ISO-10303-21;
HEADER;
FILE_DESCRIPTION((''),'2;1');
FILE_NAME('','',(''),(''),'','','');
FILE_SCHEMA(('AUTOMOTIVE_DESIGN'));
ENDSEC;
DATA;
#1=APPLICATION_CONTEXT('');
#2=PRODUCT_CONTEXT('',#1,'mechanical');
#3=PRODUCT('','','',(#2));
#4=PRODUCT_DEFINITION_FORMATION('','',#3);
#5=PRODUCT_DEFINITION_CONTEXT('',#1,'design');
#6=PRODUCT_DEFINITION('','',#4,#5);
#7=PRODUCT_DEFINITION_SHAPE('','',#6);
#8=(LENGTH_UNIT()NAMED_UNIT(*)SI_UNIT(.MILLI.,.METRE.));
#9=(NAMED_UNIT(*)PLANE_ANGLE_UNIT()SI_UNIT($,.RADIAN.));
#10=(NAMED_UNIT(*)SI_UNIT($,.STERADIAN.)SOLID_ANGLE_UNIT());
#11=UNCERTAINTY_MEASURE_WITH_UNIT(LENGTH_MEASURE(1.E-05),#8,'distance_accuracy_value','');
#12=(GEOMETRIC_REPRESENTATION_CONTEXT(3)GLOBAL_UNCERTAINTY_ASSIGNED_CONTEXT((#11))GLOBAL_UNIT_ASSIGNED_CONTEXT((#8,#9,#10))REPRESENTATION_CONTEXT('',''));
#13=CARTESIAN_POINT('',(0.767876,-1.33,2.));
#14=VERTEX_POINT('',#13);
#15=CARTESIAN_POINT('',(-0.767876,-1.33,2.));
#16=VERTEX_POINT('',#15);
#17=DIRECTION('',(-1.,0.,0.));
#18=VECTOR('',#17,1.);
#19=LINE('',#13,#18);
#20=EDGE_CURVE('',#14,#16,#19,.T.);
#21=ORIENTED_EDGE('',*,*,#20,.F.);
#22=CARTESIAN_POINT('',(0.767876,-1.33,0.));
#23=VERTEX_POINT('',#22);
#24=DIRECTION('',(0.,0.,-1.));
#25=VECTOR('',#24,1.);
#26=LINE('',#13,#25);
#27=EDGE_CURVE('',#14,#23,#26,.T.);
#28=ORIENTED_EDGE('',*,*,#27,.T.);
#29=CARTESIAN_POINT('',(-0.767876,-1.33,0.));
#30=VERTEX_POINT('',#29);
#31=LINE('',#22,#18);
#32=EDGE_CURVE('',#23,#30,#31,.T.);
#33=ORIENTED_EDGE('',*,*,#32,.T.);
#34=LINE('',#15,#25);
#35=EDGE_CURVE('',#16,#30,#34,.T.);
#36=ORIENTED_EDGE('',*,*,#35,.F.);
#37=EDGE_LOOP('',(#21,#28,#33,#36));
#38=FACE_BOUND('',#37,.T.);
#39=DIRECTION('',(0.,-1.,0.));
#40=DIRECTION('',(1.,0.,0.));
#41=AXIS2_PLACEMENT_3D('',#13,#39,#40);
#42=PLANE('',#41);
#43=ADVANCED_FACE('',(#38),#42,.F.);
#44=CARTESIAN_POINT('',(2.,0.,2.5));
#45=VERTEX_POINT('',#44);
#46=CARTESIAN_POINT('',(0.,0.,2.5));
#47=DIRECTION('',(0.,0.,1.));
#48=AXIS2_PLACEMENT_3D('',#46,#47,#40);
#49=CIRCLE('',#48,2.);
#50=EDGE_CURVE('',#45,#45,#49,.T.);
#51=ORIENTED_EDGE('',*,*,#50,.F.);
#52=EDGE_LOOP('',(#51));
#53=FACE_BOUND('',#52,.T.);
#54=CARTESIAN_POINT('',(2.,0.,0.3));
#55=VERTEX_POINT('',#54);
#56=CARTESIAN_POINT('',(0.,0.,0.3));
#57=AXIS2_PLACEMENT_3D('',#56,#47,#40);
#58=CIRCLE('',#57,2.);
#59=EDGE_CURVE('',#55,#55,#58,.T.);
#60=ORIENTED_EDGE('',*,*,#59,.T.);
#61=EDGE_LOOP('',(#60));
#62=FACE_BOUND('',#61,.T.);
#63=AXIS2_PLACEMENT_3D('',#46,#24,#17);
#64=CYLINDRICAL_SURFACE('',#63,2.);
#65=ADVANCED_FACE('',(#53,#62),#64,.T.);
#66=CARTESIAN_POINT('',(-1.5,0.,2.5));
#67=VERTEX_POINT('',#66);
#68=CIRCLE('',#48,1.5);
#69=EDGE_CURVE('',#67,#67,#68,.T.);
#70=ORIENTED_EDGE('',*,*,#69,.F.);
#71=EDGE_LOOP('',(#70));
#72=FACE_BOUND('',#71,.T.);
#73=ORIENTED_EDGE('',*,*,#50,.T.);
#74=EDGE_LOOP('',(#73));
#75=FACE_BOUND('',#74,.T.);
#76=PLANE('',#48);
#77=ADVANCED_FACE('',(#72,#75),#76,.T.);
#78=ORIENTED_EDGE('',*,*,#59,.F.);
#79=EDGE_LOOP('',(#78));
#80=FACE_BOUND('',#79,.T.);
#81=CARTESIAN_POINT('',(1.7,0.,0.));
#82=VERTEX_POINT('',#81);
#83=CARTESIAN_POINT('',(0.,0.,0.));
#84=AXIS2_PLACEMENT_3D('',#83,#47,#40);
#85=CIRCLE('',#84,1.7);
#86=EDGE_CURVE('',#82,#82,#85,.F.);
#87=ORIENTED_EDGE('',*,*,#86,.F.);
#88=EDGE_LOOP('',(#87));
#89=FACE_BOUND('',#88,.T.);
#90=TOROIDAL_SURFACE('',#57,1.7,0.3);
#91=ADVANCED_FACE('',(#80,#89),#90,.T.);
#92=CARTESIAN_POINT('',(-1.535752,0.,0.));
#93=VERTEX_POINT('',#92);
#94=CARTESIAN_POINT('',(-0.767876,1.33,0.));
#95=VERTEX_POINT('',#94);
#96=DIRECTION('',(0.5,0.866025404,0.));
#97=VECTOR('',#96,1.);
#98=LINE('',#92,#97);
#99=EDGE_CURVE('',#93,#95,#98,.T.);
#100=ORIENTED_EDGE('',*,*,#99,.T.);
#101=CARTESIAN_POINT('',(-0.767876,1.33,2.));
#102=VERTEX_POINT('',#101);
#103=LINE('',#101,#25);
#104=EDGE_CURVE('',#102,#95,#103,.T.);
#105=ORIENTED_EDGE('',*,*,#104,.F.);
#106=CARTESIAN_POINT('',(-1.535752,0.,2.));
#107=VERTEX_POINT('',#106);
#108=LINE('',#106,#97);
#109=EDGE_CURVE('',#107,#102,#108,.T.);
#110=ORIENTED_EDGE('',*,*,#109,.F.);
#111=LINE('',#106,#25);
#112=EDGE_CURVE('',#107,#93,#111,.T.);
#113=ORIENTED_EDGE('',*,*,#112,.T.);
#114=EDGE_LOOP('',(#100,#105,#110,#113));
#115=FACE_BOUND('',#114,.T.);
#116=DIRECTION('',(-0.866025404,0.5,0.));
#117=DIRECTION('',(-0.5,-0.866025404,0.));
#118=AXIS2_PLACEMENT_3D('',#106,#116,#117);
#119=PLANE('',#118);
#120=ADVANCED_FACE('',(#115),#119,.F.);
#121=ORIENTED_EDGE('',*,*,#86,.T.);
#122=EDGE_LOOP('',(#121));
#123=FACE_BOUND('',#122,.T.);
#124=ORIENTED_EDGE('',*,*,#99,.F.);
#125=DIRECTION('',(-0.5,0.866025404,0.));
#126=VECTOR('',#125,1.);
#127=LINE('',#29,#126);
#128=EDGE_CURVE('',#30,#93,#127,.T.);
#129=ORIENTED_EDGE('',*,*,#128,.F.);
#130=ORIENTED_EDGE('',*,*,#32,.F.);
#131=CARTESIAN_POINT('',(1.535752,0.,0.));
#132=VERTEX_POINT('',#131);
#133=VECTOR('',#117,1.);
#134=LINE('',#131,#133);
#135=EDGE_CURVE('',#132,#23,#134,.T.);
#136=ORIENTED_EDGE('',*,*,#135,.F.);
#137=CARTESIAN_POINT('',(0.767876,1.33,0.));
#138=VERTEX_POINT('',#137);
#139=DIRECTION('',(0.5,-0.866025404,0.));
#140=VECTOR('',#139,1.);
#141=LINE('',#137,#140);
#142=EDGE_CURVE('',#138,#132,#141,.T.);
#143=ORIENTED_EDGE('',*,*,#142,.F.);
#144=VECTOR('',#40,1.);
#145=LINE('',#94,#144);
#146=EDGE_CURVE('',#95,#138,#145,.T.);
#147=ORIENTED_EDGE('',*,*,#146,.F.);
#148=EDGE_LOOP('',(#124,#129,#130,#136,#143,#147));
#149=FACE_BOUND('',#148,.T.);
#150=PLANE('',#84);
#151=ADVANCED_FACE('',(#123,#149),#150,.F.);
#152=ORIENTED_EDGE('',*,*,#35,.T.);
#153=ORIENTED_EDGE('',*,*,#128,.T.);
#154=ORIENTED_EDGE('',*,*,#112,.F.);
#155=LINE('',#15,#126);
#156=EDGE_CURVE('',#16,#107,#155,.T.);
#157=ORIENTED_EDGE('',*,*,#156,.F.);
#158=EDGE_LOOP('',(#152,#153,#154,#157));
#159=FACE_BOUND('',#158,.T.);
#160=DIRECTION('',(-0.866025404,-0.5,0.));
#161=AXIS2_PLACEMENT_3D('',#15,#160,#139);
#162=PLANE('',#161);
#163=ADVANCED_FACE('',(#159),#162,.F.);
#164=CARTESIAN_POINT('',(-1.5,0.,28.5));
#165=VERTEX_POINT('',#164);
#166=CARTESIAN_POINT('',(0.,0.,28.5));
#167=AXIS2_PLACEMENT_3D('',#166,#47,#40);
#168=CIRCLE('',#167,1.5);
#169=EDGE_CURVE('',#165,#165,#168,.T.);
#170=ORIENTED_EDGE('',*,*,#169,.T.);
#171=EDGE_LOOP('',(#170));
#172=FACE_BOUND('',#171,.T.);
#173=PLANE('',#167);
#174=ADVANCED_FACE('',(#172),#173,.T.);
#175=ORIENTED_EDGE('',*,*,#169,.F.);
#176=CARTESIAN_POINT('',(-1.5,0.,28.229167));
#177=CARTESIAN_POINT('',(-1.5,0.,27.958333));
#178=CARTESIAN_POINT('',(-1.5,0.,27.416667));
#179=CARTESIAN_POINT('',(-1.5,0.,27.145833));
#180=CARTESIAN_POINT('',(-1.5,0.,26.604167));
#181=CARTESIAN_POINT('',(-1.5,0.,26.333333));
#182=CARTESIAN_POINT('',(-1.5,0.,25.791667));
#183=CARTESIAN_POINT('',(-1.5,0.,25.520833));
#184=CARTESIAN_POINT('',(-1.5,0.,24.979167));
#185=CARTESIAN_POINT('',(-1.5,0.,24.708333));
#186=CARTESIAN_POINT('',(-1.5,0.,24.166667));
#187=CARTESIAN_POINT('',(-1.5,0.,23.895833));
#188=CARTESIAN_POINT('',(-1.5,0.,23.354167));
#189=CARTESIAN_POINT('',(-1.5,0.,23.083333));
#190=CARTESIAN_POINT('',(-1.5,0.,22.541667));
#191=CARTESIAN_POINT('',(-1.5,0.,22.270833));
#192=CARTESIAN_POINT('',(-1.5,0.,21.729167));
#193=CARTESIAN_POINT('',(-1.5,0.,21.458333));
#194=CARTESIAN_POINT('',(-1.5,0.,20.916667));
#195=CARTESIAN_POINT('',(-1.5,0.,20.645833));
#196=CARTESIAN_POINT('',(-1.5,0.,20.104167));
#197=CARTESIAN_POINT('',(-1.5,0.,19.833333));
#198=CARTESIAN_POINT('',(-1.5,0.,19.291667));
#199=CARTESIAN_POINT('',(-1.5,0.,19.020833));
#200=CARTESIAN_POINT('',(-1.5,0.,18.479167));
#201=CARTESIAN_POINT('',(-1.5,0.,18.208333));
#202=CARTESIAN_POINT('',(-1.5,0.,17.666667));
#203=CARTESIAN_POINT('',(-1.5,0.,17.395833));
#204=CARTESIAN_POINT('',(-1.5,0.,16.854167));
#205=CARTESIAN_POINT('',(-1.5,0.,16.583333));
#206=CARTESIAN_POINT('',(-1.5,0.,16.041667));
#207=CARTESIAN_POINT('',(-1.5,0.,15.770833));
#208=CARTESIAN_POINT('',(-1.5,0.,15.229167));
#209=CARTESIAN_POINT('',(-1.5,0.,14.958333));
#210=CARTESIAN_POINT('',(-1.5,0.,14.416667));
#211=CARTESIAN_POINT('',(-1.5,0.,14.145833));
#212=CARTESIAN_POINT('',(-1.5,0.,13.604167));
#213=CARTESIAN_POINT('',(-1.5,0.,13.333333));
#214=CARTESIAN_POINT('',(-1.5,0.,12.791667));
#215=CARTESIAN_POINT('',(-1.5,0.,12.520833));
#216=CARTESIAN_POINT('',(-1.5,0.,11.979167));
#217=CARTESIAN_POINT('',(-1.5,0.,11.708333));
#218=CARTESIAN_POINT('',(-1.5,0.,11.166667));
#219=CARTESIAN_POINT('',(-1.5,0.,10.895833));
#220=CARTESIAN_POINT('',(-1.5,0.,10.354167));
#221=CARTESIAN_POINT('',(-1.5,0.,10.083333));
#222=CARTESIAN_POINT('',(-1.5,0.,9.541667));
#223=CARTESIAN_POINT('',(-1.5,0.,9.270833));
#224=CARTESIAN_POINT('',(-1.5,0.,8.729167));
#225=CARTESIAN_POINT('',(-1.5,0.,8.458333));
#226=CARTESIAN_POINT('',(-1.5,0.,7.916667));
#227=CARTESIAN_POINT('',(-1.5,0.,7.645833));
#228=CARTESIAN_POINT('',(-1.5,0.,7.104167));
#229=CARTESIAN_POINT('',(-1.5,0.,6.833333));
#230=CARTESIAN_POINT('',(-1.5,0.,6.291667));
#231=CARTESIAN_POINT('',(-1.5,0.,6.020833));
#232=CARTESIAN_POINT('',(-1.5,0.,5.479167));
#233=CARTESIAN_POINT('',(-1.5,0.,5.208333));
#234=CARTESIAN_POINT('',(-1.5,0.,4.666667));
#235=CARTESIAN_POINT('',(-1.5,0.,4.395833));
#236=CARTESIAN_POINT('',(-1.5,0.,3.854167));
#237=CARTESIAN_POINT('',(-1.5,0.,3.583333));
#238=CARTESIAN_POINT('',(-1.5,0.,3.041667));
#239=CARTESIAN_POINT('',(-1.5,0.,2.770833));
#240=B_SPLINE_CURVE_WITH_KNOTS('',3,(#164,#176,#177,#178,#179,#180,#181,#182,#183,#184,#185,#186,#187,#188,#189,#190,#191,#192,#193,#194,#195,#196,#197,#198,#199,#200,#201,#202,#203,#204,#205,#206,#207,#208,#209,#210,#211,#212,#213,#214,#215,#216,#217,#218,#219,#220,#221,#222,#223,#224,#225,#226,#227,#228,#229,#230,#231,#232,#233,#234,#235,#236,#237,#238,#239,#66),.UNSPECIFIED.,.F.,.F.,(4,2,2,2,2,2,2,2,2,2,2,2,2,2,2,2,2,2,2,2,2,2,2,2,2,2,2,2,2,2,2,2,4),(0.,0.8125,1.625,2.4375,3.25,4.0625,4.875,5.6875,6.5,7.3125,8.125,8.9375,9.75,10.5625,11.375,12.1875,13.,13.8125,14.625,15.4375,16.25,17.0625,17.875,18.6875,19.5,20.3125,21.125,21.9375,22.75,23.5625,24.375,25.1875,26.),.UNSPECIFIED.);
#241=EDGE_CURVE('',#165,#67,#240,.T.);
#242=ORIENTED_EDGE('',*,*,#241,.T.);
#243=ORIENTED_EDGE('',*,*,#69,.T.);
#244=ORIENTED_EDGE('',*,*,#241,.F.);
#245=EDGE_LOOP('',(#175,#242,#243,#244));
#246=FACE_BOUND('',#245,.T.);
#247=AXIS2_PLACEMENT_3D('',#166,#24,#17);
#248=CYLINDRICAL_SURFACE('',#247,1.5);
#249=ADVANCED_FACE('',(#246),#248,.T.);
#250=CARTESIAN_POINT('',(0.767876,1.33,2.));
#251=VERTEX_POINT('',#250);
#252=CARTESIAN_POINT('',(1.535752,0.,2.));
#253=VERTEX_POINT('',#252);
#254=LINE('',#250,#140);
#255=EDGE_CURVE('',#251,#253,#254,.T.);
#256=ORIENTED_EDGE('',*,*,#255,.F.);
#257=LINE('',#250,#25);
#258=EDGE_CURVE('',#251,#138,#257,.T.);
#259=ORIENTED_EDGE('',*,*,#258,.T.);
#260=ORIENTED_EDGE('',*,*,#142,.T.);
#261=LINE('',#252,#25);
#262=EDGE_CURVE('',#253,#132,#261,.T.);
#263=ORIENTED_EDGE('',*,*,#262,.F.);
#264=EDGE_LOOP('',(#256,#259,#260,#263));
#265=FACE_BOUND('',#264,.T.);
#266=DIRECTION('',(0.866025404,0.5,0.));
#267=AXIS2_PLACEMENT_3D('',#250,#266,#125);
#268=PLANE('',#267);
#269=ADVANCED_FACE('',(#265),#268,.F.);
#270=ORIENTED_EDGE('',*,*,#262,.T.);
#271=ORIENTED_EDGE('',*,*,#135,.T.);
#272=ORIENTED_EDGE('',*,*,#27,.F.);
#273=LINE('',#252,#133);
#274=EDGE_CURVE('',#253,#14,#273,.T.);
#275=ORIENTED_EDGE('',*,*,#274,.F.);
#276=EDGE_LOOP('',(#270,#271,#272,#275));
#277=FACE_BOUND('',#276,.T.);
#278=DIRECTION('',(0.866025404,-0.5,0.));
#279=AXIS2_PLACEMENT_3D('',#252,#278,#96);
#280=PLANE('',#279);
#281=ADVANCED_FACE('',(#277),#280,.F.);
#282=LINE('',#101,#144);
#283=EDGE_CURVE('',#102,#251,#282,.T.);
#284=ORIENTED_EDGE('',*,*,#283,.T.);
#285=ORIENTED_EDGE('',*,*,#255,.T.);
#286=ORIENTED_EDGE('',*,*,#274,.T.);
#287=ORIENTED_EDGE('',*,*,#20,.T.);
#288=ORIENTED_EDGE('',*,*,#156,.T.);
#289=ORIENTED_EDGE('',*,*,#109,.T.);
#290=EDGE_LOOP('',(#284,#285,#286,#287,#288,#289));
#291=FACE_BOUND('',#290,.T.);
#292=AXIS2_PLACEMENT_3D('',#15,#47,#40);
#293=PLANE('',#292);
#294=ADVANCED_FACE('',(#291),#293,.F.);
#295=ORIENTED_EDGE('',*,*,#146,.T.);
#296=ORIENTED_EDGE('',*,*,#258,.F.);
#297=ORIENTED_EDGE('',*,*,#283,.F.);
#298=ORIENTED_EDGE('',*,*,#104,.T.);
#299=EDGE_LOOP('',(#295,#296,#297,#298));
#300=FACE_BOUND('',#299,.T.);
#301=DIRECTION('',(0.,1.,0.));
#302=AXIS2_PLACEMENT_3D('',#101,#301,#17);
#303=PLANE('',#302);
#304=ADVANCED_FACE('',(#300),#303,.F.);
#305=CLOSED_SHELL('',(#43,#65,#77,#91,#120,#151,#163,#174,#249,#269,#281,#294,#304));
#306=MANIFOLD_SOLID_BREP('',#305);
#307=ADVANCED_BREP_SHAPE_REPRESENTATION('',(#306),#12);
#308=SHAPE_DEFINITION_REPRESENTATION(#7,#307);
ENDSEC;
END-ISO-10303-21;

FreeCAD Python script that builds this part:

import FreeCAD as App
import Part
import Sketcher
Q = App.Units.Quantity


def edges_at(feature, points):
    """Names of the edges that pass closest to the given points."""
    edges = feature.Shape.Edges
    near = lambda p: min(range(len(edges)), key=lambda i: edges[i].distToShape(Part.Vertex(*p))[0])
    return sorted({f"Edge{near(p) + 1}" for p in points})


def add_polygon(sketch, points):
    """Adds a closed chain of lines whose ends are joined by coincident constraints."""
    first, n = sketch.GeometryCount, len(points)
    for a, b in zip(points, points[1:] + points[:1]):
        sketch.addGeometry(Part.LineSegment(App.Vector(*a, 0), App.Vector(*b, 0)), False)
    for i in range(n):
        sketch.addConstraint(Sketcher.Constraint("Coincident", first + i, 2, first + (i + 1) % n, 1))

doc = App.newDocument("Part")
body = doc.addObject("PartDesign::Body", "Body")

# Sketch on XY plane
sketch1 = body.newObject("Sketcher::SketchObject", "Sketch")
sketch1.AttachmentSupport = (doc.getObject("XY_Plane"), [""])
sketch1.MapMode = "FlatFace"
sketch1.addGeometry(Part.Circle(App.Vector(0, 0, 0), App.Vector(0, 0, 1), 2), False)
sketch1.addConstraint(Sketcher.Constraint("Coincident", 0, 3, -1, 1))
sketch1.addConstraint(Sketcher.Constraint("Diameter", 0, Q("4 mm")))
pad1 = body.newObject("PartDesign::Pad", "Pad")
pad1.Profile = sketch1
pad1.Length = 2.5

# Sketch on XY plane
sketch2 = body.newObject("Sketcher::SketchObject", "Sketch001")
sketch2.AttachmentSupport = (doc.getObject("XY_Plane"), [""])
sketch2.MapMode = "FlatFace"
sketch2.AttachmentOffset = App.Placement(App.Vector(0, 0, 2.5), App.Rotation())
sketch2.addGeometry(Part.Circle(App.Vector(0, 0, 0), App.Vector(0, 0, 1), 1.5), False)
sketch2.addConstraint(Sketcher.Constraint("Coincident", 0, 3, -1, 1))
sketch2.addConstraint(Sketcher.Constraint("Diameter", 0, Q("3 mm")))
pad2 = body.newObject("PartDesign::Pad", "Pad001")
pad2.Profile = sketch2
pad2.Length = 26
doc.recompute()

fillet = body.newObject("PartDesign::Fillet", "Fillet")
fillet.Base = (pad2, edges_at(pad2, [(-2, 0, 0)]))
fillet.Radius = 0.3

# Sketch on XY plane
sketch3 = body.newObject("Sketcher::SketchObject", "Sketch002")
sketch3.AttachmentSupport = (doc.getObject("XY_Plane"), [""])
sketch3.MapMode = "FlatFace"
add_polygon(sketch3, [(-1.5, 0), (-0.8, 1.3), (0.8, 1.3), (1.5, 0), (0.8, -1.3), (-0.8, -1.3)])  # lines 0-5
sketch3.addConstraint(Sketcher.Constraint("Horizontal", 1))
sketch3.addConstraint(Sketcher.Constraint("Horizontal", 4))
sketch3.addConstraint(Sketcher.Constraint("Symmetric", 0, 2, 3, 2, -1, 1))
sketch3.addConstraint(Sketcher.Constraint("Symmetric", 2, 2, 5, 2, -1, 1))
sketch3.addConstraint(Sketcher.Constraint("PointOnObject", 2, 2, -1))
sketch3.addConstraint(Sketcher.Constraint("Parallel", 2, 5))
sketch3.addConstraint(Sketcher.Constraint("Vertical", 1, 2, 3, 2))
sketch3.addConstraint(Sketcher.Constraint("Angle", 0, Q("60 deg")))
sketch3.addConstraint(Sketcher.Constraint("DistanceY", -1, 1, 0, 2, Q("1.33 mm")))
sketch3.addConstraint(Sketcher.Constraint("DistanceX", 1, 1, 1, 2, Q("1.535752 mm")))
pocket1 = body.newObject("PartDesign::Pocket", "Pocket")
pocket1.Profile = sketch3
pocket1.Length = 2
pocket1.Reversed = True

doc.recompute()
